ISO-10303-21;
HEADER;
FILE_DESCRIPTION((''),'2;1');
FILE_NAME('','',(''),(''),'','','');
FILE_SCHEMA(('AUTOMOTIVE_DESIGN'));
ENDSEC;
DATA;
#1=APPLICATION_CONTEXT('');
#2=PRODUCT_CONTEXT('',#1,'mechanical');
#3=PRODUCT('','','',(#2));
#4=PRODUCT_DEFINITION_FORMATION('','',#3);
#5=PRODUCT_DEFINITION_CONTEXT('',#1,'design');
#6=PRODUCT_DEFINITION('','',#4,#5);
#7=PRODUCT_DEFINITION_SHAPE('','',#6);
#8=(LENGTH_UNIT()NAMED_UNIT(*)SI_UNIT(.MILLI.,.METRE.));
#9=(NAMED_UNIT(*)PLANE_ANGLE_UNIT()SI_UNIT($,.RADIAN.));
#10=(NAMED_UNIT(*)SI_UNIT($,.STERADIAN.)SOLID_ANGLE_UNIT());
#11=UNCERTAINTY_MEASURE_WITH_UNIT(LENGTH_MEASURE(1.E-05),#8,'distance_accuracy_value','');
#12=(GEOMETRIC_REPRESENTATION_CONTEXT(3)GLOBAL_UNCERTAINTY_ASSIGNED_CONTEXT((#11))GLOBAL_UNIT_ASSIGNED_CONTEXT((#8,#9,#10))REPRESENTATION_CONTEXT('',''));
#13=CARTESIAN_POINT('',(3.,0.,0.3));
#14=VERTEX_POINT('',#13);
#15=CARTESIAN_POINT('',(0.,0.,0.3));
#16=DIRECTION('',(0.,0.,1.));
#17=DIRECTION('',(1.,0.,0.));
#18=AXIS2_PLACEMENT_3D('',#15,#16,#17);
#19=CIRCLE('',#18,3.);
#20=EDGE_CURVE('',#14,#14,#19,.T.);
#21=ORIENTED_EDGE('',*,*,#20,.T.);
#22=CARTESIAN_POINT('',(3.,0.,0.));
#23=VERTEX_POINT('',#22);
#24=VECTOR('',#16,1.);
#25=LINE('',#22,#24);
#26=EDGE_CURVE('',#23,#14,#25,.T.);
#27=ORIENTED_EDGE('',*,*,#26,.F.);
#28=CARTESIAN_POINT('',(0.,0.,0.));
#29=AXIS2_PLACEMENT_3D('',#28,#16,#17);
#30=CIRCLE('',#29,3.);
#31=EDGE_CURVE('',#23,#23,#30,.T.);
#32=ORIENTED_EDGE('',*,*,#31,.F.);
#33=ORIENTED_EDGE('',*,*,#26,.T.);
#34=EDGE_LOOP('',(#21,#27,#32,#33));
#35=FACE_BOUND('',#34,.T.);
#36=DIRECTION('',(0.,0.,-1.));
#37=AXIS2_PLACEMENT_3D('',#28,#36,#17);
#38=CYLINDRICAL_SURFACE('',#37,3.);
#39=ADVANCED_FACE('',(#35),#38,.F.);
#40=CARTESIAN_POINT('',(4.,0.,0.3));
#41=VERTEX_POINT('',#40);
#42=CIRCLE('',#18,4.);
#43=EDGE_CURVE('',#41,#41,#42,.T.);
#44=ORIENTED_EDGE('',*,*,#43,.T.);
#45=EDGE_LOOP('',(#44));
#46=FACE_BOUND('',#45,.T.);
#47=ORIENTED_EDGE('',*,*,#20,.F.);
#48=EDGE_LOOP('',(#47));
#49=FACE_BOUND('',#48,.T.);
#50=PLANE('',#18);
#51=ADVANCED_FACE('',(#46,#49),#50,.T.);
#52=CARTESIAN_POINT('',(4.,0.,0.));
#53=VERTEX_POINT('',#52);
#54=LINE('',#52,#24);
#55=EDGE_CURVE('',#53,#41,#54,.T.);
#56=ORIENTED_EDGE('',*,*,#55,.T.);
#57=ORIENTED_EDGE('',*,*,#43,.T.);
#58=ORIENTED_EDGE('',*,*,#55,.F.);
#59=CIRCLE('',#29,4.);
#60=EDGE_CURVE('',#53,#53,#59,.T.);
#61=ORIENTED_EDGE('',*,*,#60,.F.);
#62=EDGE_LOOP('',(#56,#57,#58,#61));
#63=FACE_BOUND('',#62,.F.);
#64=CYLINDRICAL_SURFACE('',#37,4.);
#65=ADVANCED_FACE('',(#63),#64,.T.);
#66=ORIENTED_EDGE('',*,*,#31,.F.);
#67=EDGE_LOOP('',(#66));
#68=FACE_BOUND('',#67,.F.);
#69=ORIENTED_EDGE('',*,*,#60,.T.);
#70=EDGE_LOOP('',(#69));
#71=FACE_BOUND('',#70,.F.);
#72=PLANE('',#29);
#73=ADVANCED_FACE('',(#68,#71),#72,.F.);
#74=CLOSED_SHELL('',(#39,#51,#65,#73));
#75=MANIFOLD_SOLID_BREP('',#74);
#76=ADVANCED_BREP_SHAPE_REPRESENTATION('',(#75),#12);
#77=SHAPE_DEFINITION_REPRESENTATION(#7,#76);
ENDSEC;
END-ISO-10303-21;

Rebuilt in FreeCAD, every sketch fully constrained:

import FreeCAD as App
import Part
import Sketcher

doc = App.newDocument("Part")
body = doc.addObject("PartDesign::Body", "Body")

# Sketch on XY plane
sketch1 = body.newObject("Sketcher::SketchObject", "Sketch")
sketch1.AttachmentSupport = (doc.getObject("XY_Plane"), [""])
sketch1.MapMode = "FlatFace"
sketch1.addGeometry([
    Part.Circle(App.Vector(0, 0, 0), App.Vector(0, 0, 1), 4),
    Part.Circle(App.Vector(0, 0, 0), App.Vector(0, 0, 1), 3),
], False)
sketch1.addConstraint([
    Sketcher.Constraint("Coincident", 0, 3, -1, 1),
    Sketcher.Constraint("Coincident", 1, 3, -1, 1),
    Sketcher.Constraint("Diameter", 0, 8.0),
    Sketcher.Constraint("Diameter", 1, 6.0),
])
pad1 = body.newObject("PartDesign::Pad", "Pad")
pad1.Profile = sketch1
pad1.Length = 0.3

doc.recompute()
